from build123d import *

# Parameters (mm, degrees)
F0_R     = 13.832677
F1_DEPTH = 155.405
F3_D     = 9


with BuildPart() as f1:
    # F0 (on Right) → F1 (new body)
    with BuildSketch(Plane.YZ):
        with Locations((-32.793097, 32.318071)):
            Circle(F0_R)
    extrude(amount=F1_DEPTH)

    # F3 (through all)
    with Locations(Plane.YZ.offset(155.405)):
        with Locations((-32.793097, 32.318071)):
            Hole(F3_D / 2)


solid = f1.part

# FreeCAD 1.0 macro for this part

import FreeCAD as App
import Part
import Sketcher

V = App.Vector
Q = App.Units.Quantity

doc = App.newDocument("Part")
body = doc.addObject("PartDesign::Body", "Body")

# Sketch on YZ plane
sketch1 = body.newObject("Sketcher::SketchObject", "Sketch")
sketch1.AttachmentSupport = (doc.getObject("YZ_Plane"), [""])
sketch1.MapMode = "FlatFace"
sketch1.addGeometry(Part.Circle(V(-33, 32, 0), V(0, 0, 1), 14), False)
sketch1.addConstraint([
    Sketcher.Constraint("Diameter", 0, Q("27.665354 mm")),
    Sketcher.Constraint("DistanceY", -1, 1, 0, 3, Q("32.318071 mm")),
    Sketcher.Constraint("DistanceX", 0, 3, -1, 1, Q("32.793097 mm")),
])
pad1 = body.newObject("PartDesign::Pad", "Pad")
pad1.Profile = sketch1
pad1.Length = 155.405

# Sketch on YZ plane
sketch2 = body.newObject("Sketcher::SketchObject", "Sketch001")
sketch2.AttachmentSupport = (doc.getObject("YZ_Plane"), [""])
sketch2.MapMode = "FlatFace"
sketch2.AttachmentOffset = App.Placement(V(0, 0, 155.405), App.Rotation())
sketch2.addGeometry(Part.Circle(V(-32.8, 32.3, 0), V(0, 0, 1), 4.5), False)
sketch2.addConstraint([
    Sketcher.Constraint("Diameter", 0, Q("9 mm")),
    Sketcher.Constraint("DistanceY", -1, 1, 0, 3, Q("32.318071 mm")),
    Sketcher.Constraint("DistanceX", 0, 3, -1, 1, Q("32.793097 mm")),
])
doc.recompute()
hole = body.newObject("PartDesign::Hole", "Hole")
hole.Profile = sketch2
hole.ThreadType = "None"
hole.Diameter = 9
hole.DepthType = "ThroughAll"

doc.recompute()
